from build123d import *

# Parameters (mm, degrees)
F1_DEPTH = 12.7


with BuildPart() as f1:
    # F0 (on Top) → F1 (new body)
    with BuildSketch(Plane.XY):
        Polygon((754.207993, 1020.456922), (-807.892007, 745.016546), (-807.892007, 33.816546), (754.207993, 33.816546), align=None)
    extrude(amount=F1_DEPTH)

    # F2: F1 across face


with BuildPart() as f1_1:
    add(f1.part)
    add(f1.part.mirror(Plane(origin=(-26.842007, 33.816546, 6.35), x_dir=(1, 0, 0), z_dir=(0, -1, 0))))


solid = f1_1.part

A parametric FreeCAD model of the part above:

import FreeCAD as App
import Part
import Sketcher

V = App.Vector
Q = App.Units.Quantity

doc = App.newDocument("Part")
body = doc.addObject("PartDesign::Body", "Body")

# Sketch on XY plane
sketch1 = body.newObject("Sketcher::SketchObject", "Sketch")
sketch1.AttachmentSupport = (doc.getObject("XY_Plane"), [""])
sketch1.MapMode = "FlatFace"
sketch1.addGeometry(Part.LineSegment(V(754.207993, 1020.456922, 0), V(-807.892007, 745.016546, 0)), False)
sketch1.addGeometry(Part.LineSegment(V(-807.892007, 745.016546, 0), V(-807.892007, 33.816546, 0)), False)
sketch1.addGeometry(Part.LineSegment(V(-807.892007, 33.816546, 0), V(754.207993, 33.816546, 0)), False)
sketch1.addGeometry(Part.LineSegment(V(754.207993, 33.816546, 0), V(754.207993, 1020.456922, 0)), False)
sketch1.addConstraint(Sketcher.Constraint("Coincident", 0, 2, 1, 1))
sketch1.addConstraint(Sketcher.Constraint("Coincident", 1, 2, 2, 1))
sketch1.addConstraint(Sketcher.Constraint("Coincident", 2, 2, 3, 1))
sketch1.addConstraint(Sketcher.Constraint("Coincident", 3, 2, 0, 1))
sketch1.addConstraint(Sketcher.Constraint("Vertical", 1))
sketch1.addConstraint(Sketcher.Constraint("Horizontal", 2))
sketch1.addConstraint(Sketcher.Constraint("Vertical", 3))
sketch1.addConstraint(Sketcher.Constraint("DistanceY", 1, 2, 1, 1, Q("28 in")))
sketch1.addConstraint(Sketcher.Constraint("DistanceX", 2, 1, 2, 2, Q("61.5 in")))
sketch1.addConstraint(Sketcher.Constraint("Angle", 0, Q("-170 deg")))
sketch1.addConstraint(Sketcher.Constraint("DistanceY", -1, 1, 3, 2, 1020.456922))
sketch1.addConstraint(Sketcher.Constraint("DistanceX", 0, 2, -1, 1, 807.892007))
pad1 = body.newObject("PartDesign::Pad", "Pad")
pad1.Profile = sketch1
pad1.Length = Q("0.5 in")
body2 = doc.addObject("PartDesign::Body", "Body001")
doc.recompute()

body2.BaseFeature = body
doc.recompute()

mirroring = doc.addObject("Part::Mirroring", "Mirroring")
mirroring.Source = body
mirroring.Base = V(-26.842007, 33.816546, 6.35)
mirroring.Normal = V(0, -1, 0)
body3 = doc.addObject("PartDesign::Body", "Body002")
body3.BaseFeature = mirroring
boolean = body2.newObject("PartDesign::Boolean", "Boolean")
boolean.Type = "Fuse"
boolean.addObjects([body3])
doc.recompute()
mirroring.Visibility = False

doc.recompute()
